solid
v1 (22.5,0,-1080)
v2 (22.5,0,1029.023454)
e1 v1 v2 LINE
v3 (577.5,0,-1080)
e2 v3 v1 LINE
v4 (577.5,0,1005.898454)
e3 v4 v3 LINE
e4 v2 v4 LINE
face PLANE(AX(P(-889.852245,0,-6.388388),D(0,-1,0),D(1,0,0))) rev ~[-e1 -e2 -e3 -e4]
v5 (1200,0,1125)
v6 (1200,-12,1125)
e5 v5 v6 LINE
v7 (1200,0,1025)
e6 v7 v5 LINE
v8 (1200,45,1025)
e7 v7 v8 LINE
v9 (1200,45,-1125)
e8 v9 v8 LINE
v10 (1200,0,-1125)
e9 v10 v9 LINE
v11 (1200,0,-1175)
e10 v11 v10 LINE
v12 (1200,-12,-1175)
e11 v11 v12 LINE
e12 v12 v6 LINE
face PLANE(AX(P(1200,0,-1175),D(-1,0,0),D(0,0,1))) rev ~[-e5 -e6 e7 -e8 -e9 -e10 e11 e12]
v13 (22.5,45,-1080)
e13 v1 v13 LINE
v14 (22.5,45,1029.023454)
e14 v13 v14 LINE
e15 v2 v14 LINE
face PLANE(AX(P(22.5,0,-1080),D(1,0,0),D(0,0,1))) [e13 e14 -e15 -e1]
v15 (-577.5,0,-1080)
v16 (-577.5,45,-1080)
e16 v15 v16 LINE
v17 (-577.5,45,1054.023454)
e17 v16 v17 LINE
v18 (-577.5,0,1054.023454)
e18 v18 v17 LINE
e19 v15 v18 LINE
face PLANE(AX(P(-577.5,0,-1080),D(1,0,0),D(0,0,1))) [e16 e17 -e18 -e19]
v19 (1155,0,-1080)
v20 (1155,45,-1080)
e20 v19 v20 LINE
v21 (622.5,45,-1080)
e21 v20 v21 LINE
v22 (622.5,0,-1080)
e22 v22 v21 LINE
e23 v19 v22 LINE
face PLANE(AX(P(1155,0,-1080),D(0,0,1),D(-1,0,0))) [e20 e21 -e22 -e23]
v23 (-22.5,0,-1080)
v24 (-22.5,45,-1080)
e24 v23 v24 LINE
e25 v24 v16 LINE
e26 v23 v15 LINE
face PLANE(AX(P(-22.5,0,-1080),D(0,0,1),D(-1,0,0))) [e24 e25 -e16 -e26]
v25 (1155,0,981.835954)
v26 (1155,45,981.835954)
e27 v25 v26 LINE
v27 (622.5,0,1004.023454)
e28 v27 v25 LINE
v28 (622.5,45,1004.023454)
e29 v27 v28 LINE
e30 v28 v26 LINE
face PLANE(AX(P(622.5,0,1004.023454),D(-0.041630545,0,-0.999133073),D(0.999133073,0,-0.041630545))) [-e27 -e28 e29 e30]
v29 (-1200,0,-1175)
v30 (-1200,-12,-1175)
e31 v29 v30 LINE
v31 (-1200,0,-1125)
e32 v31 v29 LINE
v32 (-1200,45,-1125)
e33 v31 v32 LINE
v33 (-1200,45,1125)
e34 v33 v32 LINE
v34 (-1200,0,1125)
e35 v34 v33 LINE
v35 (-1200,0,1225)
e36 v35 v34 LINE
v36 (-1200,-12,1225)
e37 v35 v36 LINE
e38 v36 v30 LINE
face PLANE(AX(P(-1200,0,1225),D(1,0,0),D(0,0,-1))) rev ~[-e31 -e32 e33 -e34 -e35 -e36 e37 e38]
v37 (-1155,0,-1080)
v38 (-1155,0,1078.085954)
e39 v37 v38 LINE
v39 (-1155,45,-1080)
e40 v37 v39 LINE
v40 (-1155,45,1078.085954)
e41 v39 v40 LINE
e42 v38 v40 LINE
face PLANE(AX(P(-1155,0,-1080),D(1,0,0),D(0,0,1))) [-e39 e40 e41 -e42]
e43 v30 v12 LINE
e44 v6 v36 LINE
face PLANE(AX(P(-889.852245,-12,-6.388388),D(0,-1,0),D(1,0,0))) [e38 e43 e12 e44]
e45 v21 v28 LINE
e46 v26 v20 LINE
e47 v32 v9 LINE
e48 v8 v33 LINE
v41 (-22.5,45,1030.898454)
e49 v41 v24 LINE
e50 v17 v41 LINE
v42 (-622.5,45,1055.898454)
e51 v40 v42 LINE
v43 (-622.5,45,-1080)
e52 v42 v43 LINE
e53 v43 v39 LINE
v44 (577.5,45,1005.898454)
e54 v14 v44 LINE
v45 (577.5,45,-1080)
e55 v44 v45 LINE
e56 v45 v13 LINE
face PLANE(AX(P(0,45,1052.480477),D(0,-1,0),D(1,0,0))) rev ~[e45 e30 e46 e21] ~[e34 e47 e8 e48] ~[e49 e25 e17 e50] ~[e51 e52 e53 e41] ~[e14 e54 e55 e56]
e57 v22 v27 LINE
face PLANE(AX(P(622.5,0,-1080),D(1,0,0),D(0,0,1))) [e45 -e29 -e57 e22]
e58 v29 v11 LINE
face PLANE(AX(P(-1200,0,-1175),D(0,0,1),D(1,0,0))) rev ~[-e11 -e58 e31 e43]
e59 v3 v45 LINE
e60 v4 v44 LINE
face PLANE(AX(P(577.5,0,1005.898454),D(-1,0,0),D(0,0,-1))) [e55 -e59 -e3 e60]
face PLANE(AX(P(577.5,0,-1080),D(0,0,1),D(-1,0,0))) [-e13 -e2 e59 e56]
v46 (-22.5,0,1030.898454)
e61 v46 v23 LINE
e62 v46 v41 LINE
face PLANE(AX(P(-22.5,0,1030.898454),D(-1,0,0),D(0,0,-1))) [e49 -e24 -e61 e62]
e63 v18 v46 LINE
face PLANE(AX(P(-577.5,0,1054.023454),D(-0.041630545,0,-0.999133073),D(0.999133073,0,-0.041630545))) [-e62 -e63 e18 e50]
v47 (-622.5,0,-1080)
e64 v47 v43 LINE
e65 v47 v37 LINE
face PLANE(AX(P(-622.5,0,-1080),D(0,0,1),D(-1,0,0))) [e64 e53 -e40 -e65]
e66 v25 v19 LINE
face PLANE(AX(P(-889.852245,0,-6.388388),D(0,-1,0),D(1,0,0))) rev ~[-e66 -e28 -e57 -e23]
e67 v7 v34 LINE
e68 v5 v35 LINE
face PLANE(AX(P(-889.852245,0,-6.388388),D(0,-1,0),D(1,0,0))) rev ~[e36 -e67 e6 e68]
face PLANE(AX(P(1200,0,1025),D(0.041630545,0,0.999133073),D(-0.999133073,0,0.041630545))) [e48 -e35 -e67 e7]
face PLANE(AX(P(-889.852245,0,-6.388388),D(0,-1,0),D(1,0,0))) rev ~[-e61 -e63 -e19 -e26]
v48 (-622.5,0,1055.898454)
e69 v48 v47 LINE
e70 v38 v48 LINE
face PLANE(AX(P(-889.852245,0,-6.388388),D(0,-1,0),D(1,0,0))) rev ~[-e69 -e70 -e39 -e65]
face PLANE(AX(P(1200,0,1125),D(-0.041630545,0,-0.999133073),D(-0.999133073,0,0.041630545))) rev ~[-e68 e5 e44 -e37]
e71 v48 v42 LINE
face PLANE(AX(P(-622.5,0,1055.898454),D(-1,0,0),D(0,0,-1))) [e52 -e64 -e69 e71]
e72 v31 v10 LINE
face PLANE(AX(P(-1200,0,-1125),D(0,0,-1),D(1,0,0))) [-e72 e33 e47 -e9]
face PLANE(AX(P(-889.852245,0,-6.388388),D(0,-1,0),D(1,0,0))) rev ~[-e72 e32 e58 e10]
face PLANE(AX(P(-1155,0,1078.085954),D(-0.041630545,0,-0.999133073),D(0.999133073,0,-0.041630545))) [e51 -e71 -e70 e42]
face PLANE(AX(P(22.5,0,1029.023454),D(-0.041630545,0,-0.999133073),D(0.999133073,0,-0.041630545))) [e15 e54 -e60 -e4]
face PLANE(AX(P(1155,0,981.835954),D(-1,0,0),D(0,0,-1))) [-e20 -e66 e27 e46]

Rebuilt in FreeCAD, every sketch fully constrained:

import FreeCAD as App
import Part
import Sketcher
Q = App.Units.Quantity

doc = App.newDocument("Part")
body = doc.addObject("PartDesign::Body", "Body")

# Sketch on XZ plane
sketch1 = body.newObject("Sketcher::SketchObject", "Sketch")
sketch1.AttachmentSupport = (doc.getObject("XZ_Plane"), [""])
sketch1.MapMode = "FlatFace"
sketch1.addGeometry(Part.LineSegment(App.Vector(1200, 1025, 0), App.Vector(-1200, 1125, 0)), False)
sketch1.addGeometry(Part.LineSegment(App.Vector(-1200, 1125, 0), App.Vector(-1200, -1125, 0)), False)
sketch1.addGeometry(Part.LineSegment(App.Vector(-1200, -1125, 0), App.Vector(1200, -1125, 0)), False)
sketch1.addGeometry(Part.LineSegment(App.Vector(1200, -1125, 0), App.Vector(1200, 1025, 0)), False)
sketch1.addGeometry(Part.LineSegment(App.Vector(-1155, -1080, 0), App.Vector(-1155, 1078, 0)), False)
sketch1.addGeometry(Part.LineSegment(App.Vector(-1155, 1078, 0), App.Vector(-622, 1056, 0)), False)
sketch1.addGeometry(Part.LineSegment(App.Vector(-622, 1056, 0), App.Vector(-622, -1080, 0)), False)
sketch1.addGeometry(Part.LineSegment(App.Vector(-622, -1080, 0), App.Vector(-1155, -1080, 0)), False)
sketch1.addGeometry(Part.LineSegment(App.Vector(-578, -1080, 0), App.Vector(-578, 1054, 0)), False)
sketch1.addGeometry(Part.LineSegment(App.Vector(-578, 1054, 0), App.Vector(-22, 1031, 0)), False)
sketch1.addGeometry(Part.LineSegment(App.Vector(-22, 1031, 0), App.Vector(-22, -1080, 0)), False)
sketch1.addGeometry(Part.LineSegment(App.Vector(-22, -1080, 0), App.Vector(-578, -1080, 0)), False)
sketch1.addGeometry(Part.LineSegment(App.Vector(22, -1080, 0), App.Vector(22, 1029, 0)), False)
sketch1.addGeometry(Part.LineSegment(App.Vector(22, 1029, 0), App.Vector(578, 1006, 0)), False)
sketch1.addGeometry(Part.LineSegment(App.Vector(578, 1006, 0), App.Vector(578, -1080, 0)), False)
sketch1.addGeometry(Part.LineSegment(App.Vector(578, -1080, 0), App.Vector(22, -1080, 0)), False)
sketch1.addGeometry(Part.LineSegment(App.Vector(622, -1080, 0), App.Vector(622, 1004, 0)), False)
sketch1.addGeometry(Part.LineSegment(App.Vector(622, 1004, 0), App.Vector(1155, 982, 0)), False)
sketch1.addGeometry(Part.LineSegment(App.Vector(1155, 982, 0), App.Vector(1155, -1080, 0)), False)
sketch1.addGeometry(Part.LineSegment(App.Vector(1155, -1080, 0), App.Vector(622, -1080, 0)), False)
sketch1.addConstraint(Sketcher.Constraint("Coincident", 0, 2, 1, 1))
sketch1.addConstraint(Sketcher.Constraint("Coincident", 1, 2, 2, 1))
sketch1.addConstraint(Sketcher.Constraint("Coincident", 2, 2, 3, 1))
sketch1.addConstraint(Sketcher.Constraint("Coincident", 3, 2, 0, 1))
sketch1.addConstraint(Sketcher.Constraint("Coincident", 4, 2, 5, 1))
sketch1.addConstraint(Sketcher.Constraint("Coincident", 5, 2, 6, 1))
sketch1.addConstraint(Sketcher.Constraint("Coincident", 6, 2, 7, 1))
sketch1.addConstraint(Sketcher.Constraint("Coincident", 7, 2, 4, 1))
sketch1.addConstraint(Sketcher.Constraint("Coincident", 8, 2, 9, 1))
sketch1.addConstraint(Sketcher.Constraint("Coincident", 9, 2, 10, 1))
sketch1.addConstraint(Sketcher.Constraint("Coincident", 10, 2, 11, 1))
sketch1.addConstraint(Sketcher.Constraint("Coincident", 11, 2, 8, 1))
sketch1.addConstraint(Sketcher.Constraint("Coincident", 12, 2, 13, 1))
sketch1.addConstraint(Sketcher.Constraint("Coincident", 13, 2, 14, 1))
sketch1.addConstraint(Sketcher.Constraint("Coincident", 14, 2, 15, 1))
sketch1.addConstraint(Sketcher.Constraint("Coincident", 15, 2, 12, 1))
sketch1.addConstraint(Sketcher.Constraint("Coincident", 16, 2, 17, 1))
sketch1.addConstraint(Sketcher.Constraint("Coincident", 17, 2, 18, 1))
sketch1.addConstraint(Sketcher.Constraint("Coincident", 18, 2, 19, 1))
sketch1.addConstraint(Sketcher.Constraint("Coincident", 19, 2, 16, 1))
sketch1.addConstraint(Sketcher.Constraint("Vertical", 1))
sketch1.addConstraint(Sketcher.Constraint("Horizontal", 2))
sketch1.addConstraint(Sketcher.Constraint("Vertical", 3))
sketch1.addConstraint(Sketcher.Constraint("Vertical", 4))
sketch1.addConstraint(Sketcher.Constraint("Vertical", 6))
sketch1.addConstraint(Sketcher.Constraint("Horizontal", 7))
sketch1.addConstraint(Sketcher.Constraint("Vertical", 8))
sketch1.addConstraint(Sketcher.Constraint("Vertical", 10))
sketch1.addConstraint(Sketcher.Constraint("Horizontal", 11))
sketch1.addConstraint(Sketcher.Constraint("Vertical", 12))
sketch1.addConstraint(Sketcher.Constraint("Vertical", 14))
sketch1.addConstraint(Sketcher.Constraint("Horizontal", 15))
sketch1.addConstraint(Sketcher.Constraint("Vertical", 16))
sketch1.addConstraint(Sketcher.Constraint("Vertical", 18))
sketch1.addConstraint(Sketcher.Constraint("Horizontal", 19))
sketch1.addConstraint(Sketcher.Constraint("Symmetric", 0, 2, 2, 2, -1, 1))
sketch1.addConstraint(Sketcher.Constraint("Symmetric", 11, 2, 14, 2, -2))
sketch1.addConstraint(Sketcher.Constraint("Symmetric", 7, 2, 18, 2, -2))
sketch1.addConstraint(Sketcher.Constraint("Parallel", 0, 5))
sketch1.addConstraint(Sketcher.Constraint("Parallel", 5, 9))
sketch1.addConstraint(Sketcher.Constraint("Parallel", 9, 13))
sketch1.addConstraint(Sketcher.Constraint("Parallel", 13, 17))
sketch1.addConstraint(Sketcher.Constraint("Horizontal", 7, 2, 10, 2))
sketch1.addConstraint(Sketcher.Constraint("Equal", 11, 15))
sketch1.addConstraint(Sketcher.Constraint("Equal", 7, 19))
sketch1.addConstraint(Sketcher.Constraint("DistanceX", 2, 1, 2, 2, Q("2400 mm")))
sketch1.addConstraint(Sketcher.Constraint("DistanceX", 11, 2, 11, 1, Q("555 mm")))
sketch1.addConstraint(Sketcher.Constraint("DistanceY", 1, 2, 1, 1, Q("2250 mm")))
sketch1.addConstraint(Sketcher.Constraint("DistanceY", 3, 1, 3, 2, Q("2150 mm")))
sketch1.addConstraint(Sketcher.Constraint("DistanceX", 7, 2, 7, 1, Q("532.5 mm")))
sketch1.addConstraint(Sketcher.Constraint("DistanceX", 4, 2, -1, 1, Q("1155 mm")))
sketch1.addConstraint(Sketcher.Constraint("DistanceY", 6, 2, -1, 1, Q("1080 mm")))
sketch1.addConstraint(Sketcher.Constraint("DistanceX", 5, 2, 8, 2, Q("45 mm")))
sketch1.addConstraint(Sketcher.Constraint("DistanceY", 9, 2, 5, 2, Q("25 mm")))
sketch1.addConstraint(Sketcher.Constraint("DistanceY", 12, 2, 8, 2, Q("25 mm")))
sketch1.addConstraint(Sketcher.Constraint("DistanceY", 16, 2, 12, 2, Q("25 mm")))
sketch1.addConstraint(Sketcher.Constraint("DistanceY", 4, 1, 4, 2, Q("2158.085954 mm")))
pad1 = body.newObject("PartDesign::Pad", "Pad")
pad1.Profile = sketch1
pad1.Length = 45
pad1.Reversed = True

# Sketch on XZ plane
sketch2 = body.newObject("Sketcher::SketchObject", "Sketch001")
sketch2.AttachmentSupport = (doc.getObject("XZ_Plane"), [""])
sketch2.MapMode = "FlatFace"
sketch2.addGeometry(Part.LineSegment(App.Vector(1200, 1125, 0), App.Vector(-1200, 1225, 0)), False)
sketch2.addGeometry(Part.LineSegment(App.Vector(-1200, 1225, 0), App.Vector(-1200, -1175, 0)), False)
sketch2.addGeometry(Part.LineSegment(App.Vector(-1200, -1175, 0), App.Vector(1200, -1175, 0)), False)
sketch2.addGeometry(Part.LineSegment(App.Vector(1200, -1175, 0), App.Vector(1200, 1125, 0)), False)
sketch2.addConstraint(Sketcher.Constraint("Coincident", 0, 2, 1, 1))
sketch2.addConstraint(Sketcher.Constraint("Coincident", 1, 2, 2, 1))
sketch2.addConstraint(Sketcher.Constraint("Coincident", 2, 2, 3, 1))
sketch2.addConstraint(Sketcher.Constraint("Coincident", 3, 2, 0, 1))
sketch2.addConstraint(Sketcher.Constraint("Vertical", 1))
sketch2.addConstraint(Sketcher.Constraint("Horizontal", 2))
sketch2.addConstraint(Sketcher.Constraint("Vertical", 3))
sketch2.addConstraint(Sketcher.Constraint("Equal", 2, 1))
sketch2.addConstraint(Sketcher.Constraint("DistanceX", 2, 1, 2, 2, Q("2400 mm")))
sketch2.addConstraint(Sketcher.Constraint("DistanceY", 3, 1, 3, 2, Q("2300 mm")))
sketch2.addConstraint(Sketcher.Constraint("DistanceX", 0, 2, -1, 1, Q("1200 mm")))
sketch2.addConstraint(Sketcher.Constraint("DistanceY", -1, 1, 0, 2, Q("1225 mm")))
pad2 = body.newObject("PartDesign::Pad", "Pad001")
pad2.Profile = sketch2
pad2.Length = 12

doc.recompute()
